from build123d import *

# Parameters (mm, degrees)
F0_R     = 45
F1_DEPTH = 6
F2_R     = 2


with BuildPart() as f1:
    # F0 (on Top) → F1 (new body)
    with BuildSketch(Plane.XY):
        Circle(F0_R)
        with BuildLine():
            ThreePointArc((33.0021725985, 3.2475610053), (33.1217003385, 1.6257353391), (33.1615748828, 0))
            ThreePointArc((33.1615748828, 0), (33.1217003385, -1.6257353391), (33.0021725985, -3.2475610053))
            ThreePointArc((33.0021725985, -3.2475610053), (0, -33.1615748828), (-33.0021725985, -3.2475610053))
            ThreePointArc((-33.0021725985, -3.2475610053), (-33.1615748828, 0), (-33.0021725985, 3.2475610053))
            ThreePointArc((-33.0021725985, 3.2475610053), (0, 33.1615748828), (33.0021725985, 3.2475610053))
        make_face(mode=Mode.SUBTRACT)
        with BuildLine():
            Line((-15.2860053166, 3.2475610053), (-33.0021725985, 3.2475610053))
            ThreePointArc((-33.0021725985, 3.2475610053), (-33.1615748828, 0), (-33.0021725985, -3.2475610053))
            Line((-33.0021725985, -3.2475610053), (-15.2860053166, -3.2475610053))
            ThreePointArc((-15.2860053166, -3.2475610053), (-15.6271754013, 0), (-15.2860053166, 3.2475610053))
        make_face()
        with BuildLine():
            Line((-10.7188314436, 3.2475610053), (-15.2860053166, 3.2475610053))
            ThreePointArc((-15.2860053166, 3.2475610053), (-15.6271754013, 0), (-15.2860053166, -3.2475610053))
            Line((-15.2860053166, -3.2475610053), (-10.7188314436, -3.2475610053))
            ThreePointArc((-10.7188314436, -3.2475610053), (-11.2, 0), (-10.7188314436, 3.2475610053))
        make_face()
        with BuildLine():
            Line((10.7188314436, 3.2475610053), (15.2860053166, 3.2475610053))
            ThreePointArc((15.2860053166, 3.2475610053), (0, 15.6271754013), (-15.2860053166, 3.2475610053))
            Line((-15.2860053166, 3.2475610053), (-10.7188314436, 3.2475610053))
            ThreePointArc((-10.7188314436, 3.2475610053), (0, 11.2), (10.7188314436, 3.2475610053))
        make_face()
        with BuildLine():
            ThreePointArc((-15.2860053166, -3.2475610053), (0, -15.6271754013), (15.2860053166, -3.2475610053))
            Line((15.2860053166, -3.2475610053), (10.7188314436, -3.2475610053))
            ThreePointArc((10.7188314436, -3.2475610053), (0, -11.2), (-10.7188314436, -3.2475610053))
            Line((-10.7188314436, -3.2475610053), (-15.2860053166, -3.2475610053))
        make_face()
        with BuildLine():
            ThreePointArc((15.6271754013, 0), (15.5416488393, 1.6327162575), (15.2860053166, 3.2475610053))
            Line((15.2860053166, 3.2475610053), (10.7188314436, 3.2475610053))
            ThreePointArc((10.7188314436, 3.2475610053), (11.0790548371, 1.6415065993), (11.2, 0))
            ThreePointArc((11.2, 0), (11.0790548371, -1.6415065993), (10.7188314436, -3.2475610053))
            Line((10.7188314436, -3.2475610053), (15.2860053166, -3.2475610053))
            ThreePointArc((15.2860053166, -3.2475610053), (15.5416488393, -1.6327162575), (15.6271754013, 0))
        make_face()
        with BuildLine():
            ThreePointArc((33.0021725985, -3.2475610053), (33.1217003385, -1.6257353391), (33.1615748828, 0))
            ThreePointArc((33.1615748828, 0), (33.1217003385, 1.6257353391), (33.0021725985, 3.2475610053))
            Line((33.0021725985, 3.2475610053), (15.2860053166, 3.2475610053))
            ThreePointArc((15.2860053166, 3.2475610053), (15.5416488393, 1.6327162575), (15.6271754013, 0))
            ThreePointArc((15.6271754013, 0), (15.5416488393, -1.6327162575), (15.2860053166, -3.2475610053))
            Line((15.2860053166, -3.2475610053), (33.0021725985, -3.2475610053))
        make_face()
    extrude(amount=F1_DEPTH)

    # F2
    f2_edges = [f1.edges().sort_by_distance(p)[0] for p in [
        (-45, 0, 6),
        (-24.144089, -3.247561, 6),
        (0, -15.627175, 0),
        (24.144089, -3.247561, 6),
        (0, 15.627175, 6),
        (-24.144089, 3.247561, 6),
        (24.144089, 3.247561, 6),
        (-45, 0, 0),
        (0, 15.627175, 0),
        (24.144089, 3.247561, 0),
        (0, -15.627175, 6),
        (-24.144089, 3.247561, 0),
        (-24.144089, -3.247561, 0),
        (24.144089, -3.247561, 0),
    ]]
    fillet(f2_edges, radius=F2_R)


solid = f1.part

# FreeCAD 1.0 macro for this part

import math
import FreeCAD as App
import Part
import Sketcher

V = App.Vector


def edges_at(feature, points):
    """Names of the edges that pass closest to the given points."""
    edges = feature.Shape.Edges
    near = lambda p: min(range(len(edges)), key=lambda i: edges[i].distToShape(Part.Vertex(*p))[0])
    return sorted({f"Edge{near(p) + 1}" for p in points})

doc = App.newDocument("Part")
body = doc.addObject("PartDesign::Body", "Body")

# Sketch on XY plane
sketch1 = body.newObject("Sketcher::SketchObject", "Sketch")
sketch1.AttachmentSupport = (doc.getObject("XY_Plane"), [""])
sketch1.MapMode = "FlatFace"
sketch1.addGeometry([
    Part.Circle(V(0, 0, 0), V(0, 0, 1), 45),  # 0
    Part.ArcOfCircle(Part.Circle(V(0, 0, 0), V(0, 0, 1), 33.2), math.radians(6), math.radians(174)),  # 1
    Part.LineSegment(V(33, 3.2, 0), V(15.3, 3.2, 0)),  # 2
    Part.ArcOfCircle(Part.Circle(V(0, 0, 0), V(0, 0, 1), 15.6), math.radians(12), math.radians(168)),  # 3
    Part.LineSegment(V(-15.3, 3.2, 0), V(-33, 3.2, 0)),  # 4
    Part.ArcOfCircle(Part.Circle(V(0, 0, 0), V(0, 0, 1), 33.2), math.radians(-174), math.radians(-6)),  # 5
    Part.LineSegment(V(-33, -3.2, 0), V(-15.3, -3.2, 0)),  # 6
    Part.ArcOfCircle(Part.Circle(V(0, 0, 0), V(0, 0, 1), 15.6), math.radians(-168), math.radians(-12)),  # 7
    Part.LineSegment(V(15.3, -3.2, 0), V(33, -3.2, 0)),  # 8
    Part.ArcOfCircle(Part.Circle(V(0, 0, 0), V(0, 0, 1), 11.2), math.radians(-163), math.radians(-17)),  # 9
    Part.ArcOfCircle(Part.Circle(V(0, 0, 0), V(0, 0, 1), 11.2), math.radians(163), math.radians(197)),  # 10
    Part.ArcOfCircle(Part.Circle(V(0, 0, 0), V(0, 0, 1), 11.2), math.radians(17), math.radians(163)),  # 11
    Part.ArcOfCircle(Part.Circle(V(0, 0, 0), V(0, 0, 1), 11.2), math.radians(0), math.radians(16.86)),  # 12
    Part.ArcOfCircle(Part.Circle(V(0, 0, 0), V(0, 0, 1), 11.2), math.radians(-16.86), math.radians(0)),  # 13
], False)
sketch1.addConstraint([
    Sketcher.Constraint("Coincident", 1, 1, 2, 1),
    Sketcher.Constraint("Coincident", 2, 2, 3, 1),
    Sketcher.Constraint("Coincident", 3, 2, 4, 1),
    Sketcher.Constraint("Coincident", 4, 2, 1, 2),
    Sketcher.Constraint("Coincident", 5, 1, 6, 1),
    Sketcher.Constraint("Coincident", 6, 2, 7, 1),
    Sketcher.Constraint("Coincident", 7, 2, 8, 1),
    Sketcher.Constraint("Coincident", 8, 2, 5, 2),
    Sketcher.Constraint("Tangent", 9, 1, 10, 2),
    Sketcher.Constraint("Tangent", 10, 1, 11, 2),
    Sketcher.Constraint("Tangent", 11, 1, 12, 2),
    Sketcher.Constraint("Tangent", 12, 1, 13, 2),
    Sketcher.Constraint("Tangent", 13, 1, 9, 2),
    Sketcher.Constraint("Horizontal", 2),
    Sketcher.Constraint("Horizontal", 4),
    Sketcher.Constraint("Horizontal", 6),
    Sketcher.Constraint("Horizontal", 8),
    Sketcher.Constraint("Coincident", 0, 3, -1, 1),
    Sketcher.Constraint("Coincident", 1, 3, -1, 1),
    Sketcher.Constraint("Coincident", 3, 3, -1, 1),
    Sketcher.Constraint("Coincident", 5, 3, -1, 1),
    Sketcher.Constraint("Coincident", 7, 3, -1, 1),
    Sketcher.Constraint("Coincident", 9, 3, -1, 1),
    Sketcher.Constraint("Coincident", 11, 3, -1, 1),
    Sketcher.Constraint("Equal", 1, 5),
    Sketcher.Constraint("Equal", 3, 7),
    Sketcher.Constraint("PointOnObject", 12, 1, -1),
    Sketcher.Constraint("Horizontal", 2, 2, 3, 2),
    Sketcher.Constraint("Horizontal", 6, 2, 7, 2),
    Sketcher.Constraint("Horizontal", 8, 2, 9, 1),
    Sketcher.Constraint("Horizontal", 4, 2, 10, 1),
    Sketcher.Constraint("Horizontal", 10, 1, 11, 1),
    Sketcher.Constraint("Horizontal", 9, 1, 13, 1),
    Sketcher.Constraint("Vertical", 4, 2, 5, 1),
    Sketcher.Constraint("Diameter", 0, 90.0),
    Sketcher.Constraint("Radius", 9, 11.2),
    Sketcher.Constraint("Radius", 1, 33.161575),
    Sketcher.Constraint("Radius", 3, 15.627175),
    Sketcher.Constraint("DistanceX", 2, 2, 2, 1, 17.716167),
])
pad1 = body.newObject("PartDesign::Pad", "Pad")
pad1.Profile = sketch1
pad1.Length = 6
doc.recompute()

fillet = body.newObject("PartDesign::Fillet", "Fillet")
fillet.Base = (pad1, edges_at(pad1, [
    (-45, 0, 6),
    (-24.144, -3.248, 6),
    (0, -15.627, 0),
    (24.144, -3.248, 6),
    (0, 15.627, 6),
    (-24.144, 3.248, 6),
    (24.144, 3.248, 6),
    (-45, 0, 0),
    (0, 15.627, 0),
    (24.144, 3.248, 0),
    (0, -15.627, 6),
    (-24.144, 3.248, 0),
    (-24.144, -3.248, 0),
    (24.144, -3.248, 0),
]))
fillet.Radius = 2

doc.recompute()
